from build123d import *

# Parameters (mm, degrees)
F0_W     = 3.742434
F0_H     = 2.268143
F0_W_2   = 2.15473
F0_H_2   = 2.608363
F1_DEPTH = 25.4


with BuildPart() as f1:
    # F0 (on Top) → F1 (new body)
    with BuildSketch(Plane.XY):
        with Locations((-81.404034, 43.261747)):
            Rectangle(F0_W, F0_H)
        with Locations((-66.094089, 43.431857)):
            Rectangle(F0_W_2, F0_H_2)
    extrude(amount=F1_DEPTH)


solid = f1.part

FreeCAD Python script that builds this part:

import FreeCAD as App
import Part
import Sketcher

V = App.Vector


def add_polygon(sketch, points):
    """Adds a closed chain of lines whose ends are joined by coincident constraints."""
    first, n = sketch.GeometryCount, len(points)
    for a, b in zip(points, points[1:] + points[:1]):
        sketch.addGeometry(Part.LineSegment(App.Vector(*a, 0), App.Vector(*b, 0)), False)
    for i in range(n):
        sketch.addConstraint(Sketcher.Constraint("Coincident", first + i, 2, first + (i + 1) % n, 1))

doc = App.newDocument("Part")
params = doc.addObject("Spreadsheet::Sheet", "Params")
for row, (alias, value) in enumerate([
    ("pad1_length", "1 in"),
], start=1):
    params.set(f"A{row}", alias)
    params.set(f"B{row}", "=" + value)
    params.setAlias(f"B{row}", alias)

body = doc.addObject("PartDesign::Body", "Body")
body.AllowCompound = True

# Sketch on XY plane
sketch1 = body.newObject("Sketcher::SketchObject", "Sketch")
sketch1.AttachmentSupport = (doc.getObject("XY_Plane"), [""])
sketch1.MapMode = "FlatFace"
add_polygon(sketch1, [(-83.275251, 44.395818), (-83.275251, 42.127676), (-79.532817, 42.127676), (-79.532817, 44.395818)])  # lines 0-3
add_polygon(sketch1, [(-67.171454, 44.736038), (-67.171454, 42.127676), (-65.016724, 42.127676), (-65.016724, 44.736038)])  # lines 4-7
sketch1.addConstraint([
    Sketcher.Constraint("Vertical", 0),
    Sketcher.Constraint("Horizontal", 1),
    Sketcher.Constraint("Vertical", 2),
    Sketcher.Constraint("Horizontal", 3),
    Sketcher.Constraint("Vertical", 4),
    Sketcher.Constraint("Horizontal", 5),
    Sketcher.Constraint("Vertical", 6),
    Sketcher.Constraint("Horizontal", 7),
    Sketcher.Constraint("Horizontal", 1, 2, 4, 2),
    Sketcher.Constraint("DistanceX", 5, 1, 5, 2, 2.15473),
    Sketcher.Constraint("DistanceX", 1, 1, 1, 2, 3.742434),
    Sketcher.Constraint("DistanceY", 0, 2, 0, 1, 2.268143),
    Sketcher.Constraint("DistanceY", 4, 2, 4, 1, 2.608363),
    Sketcher.Constraint("DistanceX", 0, 2, -1, 1, 83.275251),
    Sketcher.Constraint("DistanceY", -1, 1, 2, 2, 44.395818),
    Sketcher.Constraint("DistanceX", 4, 2, -1, 1, 67.171454),
])
pad1 = body.newObject("PartDesign::Pad", "Pad")
pad1.Profile = sketch1
pad1.setExpression("Length", "Params.pad1_length")

doc.recompute()
